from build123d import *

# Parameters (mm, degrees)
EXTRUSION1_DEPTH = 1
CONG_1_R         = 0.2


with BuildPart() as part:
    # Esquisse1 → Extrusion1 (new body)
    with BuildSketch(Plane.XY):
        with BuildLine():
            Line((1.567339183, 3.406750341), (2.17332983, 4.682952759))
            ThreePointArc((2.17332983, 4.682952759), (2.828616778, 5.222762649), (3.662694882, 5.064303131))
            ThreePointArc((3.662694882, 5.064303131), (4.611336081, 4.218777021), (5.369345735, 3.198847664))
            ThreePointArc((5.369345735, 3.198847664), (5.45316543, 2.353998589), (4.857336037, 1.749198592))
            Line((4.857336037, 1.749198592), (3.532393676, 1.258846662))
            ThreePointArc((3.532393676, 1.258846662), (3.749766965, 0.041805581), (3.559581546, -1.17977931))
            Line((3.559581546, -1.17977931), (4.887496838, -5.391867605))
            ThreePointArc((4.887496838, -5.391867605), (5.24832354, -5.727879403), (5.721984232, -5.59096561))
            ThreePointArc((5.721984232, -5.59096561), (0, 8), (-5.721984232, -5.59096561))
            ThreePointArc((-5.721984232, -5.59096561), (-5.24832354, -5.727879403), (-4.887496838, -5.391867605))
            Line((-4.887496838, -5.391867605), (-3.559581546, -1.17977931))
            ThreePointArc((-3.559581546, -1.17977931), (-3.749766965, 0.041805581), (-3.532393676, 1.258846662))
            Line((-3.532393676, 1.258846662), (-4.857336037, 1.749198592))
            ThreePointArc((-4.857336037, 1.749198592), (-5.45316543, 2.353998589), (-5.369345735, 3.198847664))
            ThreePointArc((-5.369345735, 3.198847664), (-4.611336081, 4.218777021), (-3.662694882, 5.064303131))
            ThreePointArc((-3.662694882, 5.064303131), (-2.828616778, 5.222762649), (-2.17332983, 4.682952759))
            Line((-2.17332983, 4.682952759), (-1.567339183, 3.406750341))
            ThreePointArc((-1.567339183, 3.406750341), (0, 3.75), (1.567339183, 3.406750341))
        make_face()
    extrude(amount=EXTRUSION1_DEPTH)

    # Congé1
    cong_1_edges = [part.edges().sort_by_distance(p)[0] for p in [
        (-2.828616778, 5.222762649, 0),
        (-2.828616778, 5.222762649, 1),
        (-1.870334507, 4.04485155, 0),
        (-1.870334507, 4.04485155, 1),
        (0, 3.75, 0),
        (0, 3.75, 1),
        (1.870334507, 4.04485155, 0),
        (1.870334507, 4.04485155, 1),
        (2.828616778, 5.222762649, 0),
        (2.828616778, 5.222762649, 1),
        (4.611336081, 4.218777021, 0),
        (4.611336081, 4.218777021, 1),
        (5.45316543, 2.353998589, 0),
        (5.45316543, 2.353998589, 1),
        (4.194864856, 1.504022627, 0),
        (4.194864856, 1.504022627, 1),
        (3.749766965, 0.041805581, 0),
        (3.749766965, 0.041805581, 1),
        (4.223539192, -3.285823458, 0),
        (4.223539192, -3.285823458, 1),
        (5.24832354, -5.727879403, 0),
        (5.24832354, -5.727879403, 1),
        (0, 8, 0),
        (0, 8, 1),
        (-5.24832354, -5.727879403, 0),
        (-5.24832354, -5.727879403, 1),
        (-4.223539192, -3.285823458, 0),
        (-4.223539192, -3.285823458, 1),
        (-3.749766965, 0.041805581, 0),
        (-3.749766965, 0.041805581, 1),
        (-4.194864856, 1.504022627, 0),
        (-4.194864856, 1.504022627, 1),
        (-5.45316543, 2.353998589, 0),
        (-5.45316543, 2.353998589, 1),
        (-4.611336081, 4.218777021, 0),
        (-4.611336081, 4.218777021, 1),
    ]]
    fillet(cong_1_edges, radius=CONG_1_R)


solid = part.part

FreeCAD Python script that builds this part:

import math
import FreeCAD as App
import Part
import Sketcher

V = App.Vector


def edges_at(feature, points):
    """Names of the edges that pass closest to the given points."""
    edges = feature.Shape.Edges
    near = lambda p: min(range(len(edges)), key=lambda i: edges[i].distToShape(Part.Vertex(*p))[0])
    return sorted({f"Edge{near(p) + 1}" for p in points})

doc = App.newDocument("Part")
body = doc.addObject("PartDesign::Body", "Body")

sketch1 = body.newObject("Sketcher::SketchObject", "Sketch")
sketch1.AttachmentSupport = (doc.getObject("XY_Plane"), [""])
sketch1.MapMode = "FlatFace"
sketch1.addGeometry([
    Part.LineSegment(V(1.6, 3.4, 0), V(2.2, 4.7, 0)),
    Part.ArcOfCircle(Part.Circle(V(3.1, 4.3, 0), V(0, 0, 1), 1), math.radians(54), math.radians(155)),
    Part.ArcOfCircle(Part.Circle(V(0, 0, 0), V(0, 0, 1), 6.2), math.radians(31), math.radians(54)),
    Part.ArcOfCircle(Part.Circle(V(4.5, 2.7, 0), V(0, 0, 1), 1), math.radians(-70), math.radians(31)),
    Part.LineSegment(V(4.9, 1.7, 0), V(3.5, 1.3, 0)),
    Part.ArcOfCircle(Part.Circle(V(0, 0, 0), V(0, 0, 1), 3.8), math.radians(-18), math.radians(20)),
    Part.LineSegment(V(3.6, -1.2, 0), V(4.9, -5.4, 0)),
    Part.ArcOfCircle(Part.Circle(V(5.4, -5.2, 0), V(0, 0, 1), 0.5), math.radians(-163), math.radians(-44)),
    Part.ArcOfCircle(Part.Circle(V(0, 0, 0), V(0, 0, 1), 8), math.radians(-44), math.radians(224)),
    Part.ArcOfCircle(Part.Circle(V(-5.4, -5.2, 0), V(0, 0, 1), 0.5), math.radians(-136), math.radians(-17)),
    Part.LineSegment(V(-4.9, -5.4, 0), V(-3.6, -1.2, 0)),
    Part.ArcOfCircle(Part.Circle(V(0, 0, 0), V(0, 0, 1), 3.8), math.radians(160), math.radians(198)),
    Part.LineSegment(V(-3.5, 1.3, 0), V(-4.9, 1.7, 0)),
    Part.ArcOfCircle(Part.Circle(V(-4.5, 2.7, 0), V(0, 0, 1), 1), math.radians(149), math.radians(250)),
    Part.ArcOfCircle(Part.Circle(V(0, 0, 0), V(0, 0, 1), 6.2), math.radians(126), math.radians(149)),
    Part.ArcOfCircle(Part.Circle(V(-3.1, 4.3, 0), V(0, 0, 1), 1), math.radians(25), math.radians(126)),
    Part.LineSegment(V(-2.2, 4.7, 0), V(-1.6, 3.4, 0)),
    Part.ArcOfCircle(Part.Circle(V(0, 0, 0), V(0, 0, 1), 3.8), math.radians(65), math.radians(115)),
], False)
sketch1.addConstraint([
    Sketcher.Constraint("Tangent", 0, 2, 1, 2),
    Sketcher.Constraint("Tangent", 1, 1, 2, 2),
    Sketcher.Constraint("Tangent", 2, 1, 3, 2),
    Sketcher.Constraint("Tangent", 3, 1, 4, 1),
    Sketcher.Constraint("Coincident", 4, 2, 5, 2),
    Sketcher.Constraint("Coincident", 5, 1, 6, 1),
    Sketcher.Constraint("Tangent", 6, 2, 7, 1),
    Sketcher.Constraint("Tangent", 7, 2, 8, 1),
    Sketcher.Constraint("Tangent", 8, 2, 9, 1),
    Sketcher.Constraint("Tangent", 9, 2, 10, 1),
    Sketcher.Constraint("Coincident", 10, 2, 11, 2),
    Sketcher.Constraint("Coincident", 11, 1, 12, 1),
    Sketcher.Constraint("Tangent", 12, 2, 13, 2),
    Sketcher.Constraint("Tangent", 13, 1, 14, 2),
    Sketcher.Constraint("Tangent", 14, 1, 15, 2),
    Sketcher.Constraint("Tangent", 15, 1, 16, 1),
    Sketcher.Constraint("Coincident", 16, 2, 17, 2),
    Sketcher.Constraint("Coincident", 17, 1, 0, 1),
    Sketcher.Constraint("Coincident", 2, 3, -1, 1),
    Sketcher.Constraint("Coincident", 5, 3, -1, 1),
    Sketcher.Constraint("Coincident", 8, 3, -1, 1),
    Sketcher.Constraint("Coincident", 11, 3, -1, 1),
    Sketcher.Constraint("Coincident", 14, 3, -1, 1),
    Sketcher.Constraint("Coincident", 17, 3, -1, 1),
    Sketcher.Constraint("Equal", 1, 3),
    Sketcher.Constraint("Equal", 7, 9),
    Sketcher.Constraint("Equal", 5, 11),
    Sketcher.Constraint("Equal", 3, 13),
    Sketcher.Constraint("Equal", 2, 14),
    Sketcher.Constraint("Equal", 13, 15),
    Sketcher.Constraint("Equal", 11, 17),
    Sketcher.Constraint("Symmetric", 6, 2, 9, 2, -2),
    Sketcher.Constraint("Symmetric", 3, 1, 12, 2, -2),
    Sketcher.Constraint("Symmetric", 0, 2, 15, 1, -2),
    Sketcher.Constraint("Equal", 0, 4),
    Sketcher.Constraint("Radius", 1, 1.0),
    Sketcher.Constraint("Radius", 8, 8.0),
    Sketcher.Constraint("Radius", 7, 0.5),
    Sketcher.Constraint("Radius", 2, 6.25),
    Sketcher.Constraint("Radius", 5, 3.75),
    Sketcher.Constraint("DistanceY", 4, 2, 2, 1, 1.940001),
    Sketcher.Constraint("DistanceY", -1, 1, 3, 1, 1.749199),
    Sketcher.Constraint("DistanceY", 7, 2, 6, 2, 0.199098),
    Sketcher.Constraint("DistanceX", 14, 1, 11, 1, 0.130301),
    Sketcher.Constraint("Distance", 6, 4.416452),
])
pad1 = body.newObject("PartDesign::Pad", "Pad")
pad1.Profile = sketch1
pad1.Length = 1
doc.recompute()

fillet = body.newObject("PartDesign::Fillet", "Fillet")
fillet.Base = (pad1, edges_at(pad1, [
    (-2.829, 5.223, 0),
    (-2.829, 5.223, 1),
    (-1.87, 4.045, 0),
    (-1.87, 4.045, 1),
    (0, 3.75, 0),
    (0, 3.75, 1),
    (1.87, 4.045, 0),
    (1.87, 4.045, 1),
    (2.829, 5.223, 0),
    (2.829, 5.223, 1),
    (4.611, 4.219, 0),
    (4.611, 4.219, 1),
    (5.453, 2.354, 0),
    (5.453, 2.354, 1),
    (4.195, 1.504, 0),
    (4.195, 1.504, 1),
    (3.75, 0.042, 0),
    (3.75, 0.042, 1),
    (4.224, -3.286, 0),
    (4.224, -3.286, 1),
    (5.248, -5.728, 0),
    (5.248, -5.728, 1),
    (0, 8, 0),
    (0, 8, 1),
    (-5.248, -5.728, 0),
    (-5.248, -5.728, 1),
    (-4.224, -3.286, 0),
    (-4.224, -3.286, 1),
    (-3.75, 0.042, 0),
    (-3.75, 0.042, 1),
    (-4.195, 1.504, 0),
    (-4.195, 1.504, 1),
    (-5.453, 2.354, 0),
    (-5.453, 2.354, 1),
    (-4.611, 4.219, 0),
    (-4.611, 4.219, 1),
]))
fillet.Radius = 0.2

doc.recompute()
